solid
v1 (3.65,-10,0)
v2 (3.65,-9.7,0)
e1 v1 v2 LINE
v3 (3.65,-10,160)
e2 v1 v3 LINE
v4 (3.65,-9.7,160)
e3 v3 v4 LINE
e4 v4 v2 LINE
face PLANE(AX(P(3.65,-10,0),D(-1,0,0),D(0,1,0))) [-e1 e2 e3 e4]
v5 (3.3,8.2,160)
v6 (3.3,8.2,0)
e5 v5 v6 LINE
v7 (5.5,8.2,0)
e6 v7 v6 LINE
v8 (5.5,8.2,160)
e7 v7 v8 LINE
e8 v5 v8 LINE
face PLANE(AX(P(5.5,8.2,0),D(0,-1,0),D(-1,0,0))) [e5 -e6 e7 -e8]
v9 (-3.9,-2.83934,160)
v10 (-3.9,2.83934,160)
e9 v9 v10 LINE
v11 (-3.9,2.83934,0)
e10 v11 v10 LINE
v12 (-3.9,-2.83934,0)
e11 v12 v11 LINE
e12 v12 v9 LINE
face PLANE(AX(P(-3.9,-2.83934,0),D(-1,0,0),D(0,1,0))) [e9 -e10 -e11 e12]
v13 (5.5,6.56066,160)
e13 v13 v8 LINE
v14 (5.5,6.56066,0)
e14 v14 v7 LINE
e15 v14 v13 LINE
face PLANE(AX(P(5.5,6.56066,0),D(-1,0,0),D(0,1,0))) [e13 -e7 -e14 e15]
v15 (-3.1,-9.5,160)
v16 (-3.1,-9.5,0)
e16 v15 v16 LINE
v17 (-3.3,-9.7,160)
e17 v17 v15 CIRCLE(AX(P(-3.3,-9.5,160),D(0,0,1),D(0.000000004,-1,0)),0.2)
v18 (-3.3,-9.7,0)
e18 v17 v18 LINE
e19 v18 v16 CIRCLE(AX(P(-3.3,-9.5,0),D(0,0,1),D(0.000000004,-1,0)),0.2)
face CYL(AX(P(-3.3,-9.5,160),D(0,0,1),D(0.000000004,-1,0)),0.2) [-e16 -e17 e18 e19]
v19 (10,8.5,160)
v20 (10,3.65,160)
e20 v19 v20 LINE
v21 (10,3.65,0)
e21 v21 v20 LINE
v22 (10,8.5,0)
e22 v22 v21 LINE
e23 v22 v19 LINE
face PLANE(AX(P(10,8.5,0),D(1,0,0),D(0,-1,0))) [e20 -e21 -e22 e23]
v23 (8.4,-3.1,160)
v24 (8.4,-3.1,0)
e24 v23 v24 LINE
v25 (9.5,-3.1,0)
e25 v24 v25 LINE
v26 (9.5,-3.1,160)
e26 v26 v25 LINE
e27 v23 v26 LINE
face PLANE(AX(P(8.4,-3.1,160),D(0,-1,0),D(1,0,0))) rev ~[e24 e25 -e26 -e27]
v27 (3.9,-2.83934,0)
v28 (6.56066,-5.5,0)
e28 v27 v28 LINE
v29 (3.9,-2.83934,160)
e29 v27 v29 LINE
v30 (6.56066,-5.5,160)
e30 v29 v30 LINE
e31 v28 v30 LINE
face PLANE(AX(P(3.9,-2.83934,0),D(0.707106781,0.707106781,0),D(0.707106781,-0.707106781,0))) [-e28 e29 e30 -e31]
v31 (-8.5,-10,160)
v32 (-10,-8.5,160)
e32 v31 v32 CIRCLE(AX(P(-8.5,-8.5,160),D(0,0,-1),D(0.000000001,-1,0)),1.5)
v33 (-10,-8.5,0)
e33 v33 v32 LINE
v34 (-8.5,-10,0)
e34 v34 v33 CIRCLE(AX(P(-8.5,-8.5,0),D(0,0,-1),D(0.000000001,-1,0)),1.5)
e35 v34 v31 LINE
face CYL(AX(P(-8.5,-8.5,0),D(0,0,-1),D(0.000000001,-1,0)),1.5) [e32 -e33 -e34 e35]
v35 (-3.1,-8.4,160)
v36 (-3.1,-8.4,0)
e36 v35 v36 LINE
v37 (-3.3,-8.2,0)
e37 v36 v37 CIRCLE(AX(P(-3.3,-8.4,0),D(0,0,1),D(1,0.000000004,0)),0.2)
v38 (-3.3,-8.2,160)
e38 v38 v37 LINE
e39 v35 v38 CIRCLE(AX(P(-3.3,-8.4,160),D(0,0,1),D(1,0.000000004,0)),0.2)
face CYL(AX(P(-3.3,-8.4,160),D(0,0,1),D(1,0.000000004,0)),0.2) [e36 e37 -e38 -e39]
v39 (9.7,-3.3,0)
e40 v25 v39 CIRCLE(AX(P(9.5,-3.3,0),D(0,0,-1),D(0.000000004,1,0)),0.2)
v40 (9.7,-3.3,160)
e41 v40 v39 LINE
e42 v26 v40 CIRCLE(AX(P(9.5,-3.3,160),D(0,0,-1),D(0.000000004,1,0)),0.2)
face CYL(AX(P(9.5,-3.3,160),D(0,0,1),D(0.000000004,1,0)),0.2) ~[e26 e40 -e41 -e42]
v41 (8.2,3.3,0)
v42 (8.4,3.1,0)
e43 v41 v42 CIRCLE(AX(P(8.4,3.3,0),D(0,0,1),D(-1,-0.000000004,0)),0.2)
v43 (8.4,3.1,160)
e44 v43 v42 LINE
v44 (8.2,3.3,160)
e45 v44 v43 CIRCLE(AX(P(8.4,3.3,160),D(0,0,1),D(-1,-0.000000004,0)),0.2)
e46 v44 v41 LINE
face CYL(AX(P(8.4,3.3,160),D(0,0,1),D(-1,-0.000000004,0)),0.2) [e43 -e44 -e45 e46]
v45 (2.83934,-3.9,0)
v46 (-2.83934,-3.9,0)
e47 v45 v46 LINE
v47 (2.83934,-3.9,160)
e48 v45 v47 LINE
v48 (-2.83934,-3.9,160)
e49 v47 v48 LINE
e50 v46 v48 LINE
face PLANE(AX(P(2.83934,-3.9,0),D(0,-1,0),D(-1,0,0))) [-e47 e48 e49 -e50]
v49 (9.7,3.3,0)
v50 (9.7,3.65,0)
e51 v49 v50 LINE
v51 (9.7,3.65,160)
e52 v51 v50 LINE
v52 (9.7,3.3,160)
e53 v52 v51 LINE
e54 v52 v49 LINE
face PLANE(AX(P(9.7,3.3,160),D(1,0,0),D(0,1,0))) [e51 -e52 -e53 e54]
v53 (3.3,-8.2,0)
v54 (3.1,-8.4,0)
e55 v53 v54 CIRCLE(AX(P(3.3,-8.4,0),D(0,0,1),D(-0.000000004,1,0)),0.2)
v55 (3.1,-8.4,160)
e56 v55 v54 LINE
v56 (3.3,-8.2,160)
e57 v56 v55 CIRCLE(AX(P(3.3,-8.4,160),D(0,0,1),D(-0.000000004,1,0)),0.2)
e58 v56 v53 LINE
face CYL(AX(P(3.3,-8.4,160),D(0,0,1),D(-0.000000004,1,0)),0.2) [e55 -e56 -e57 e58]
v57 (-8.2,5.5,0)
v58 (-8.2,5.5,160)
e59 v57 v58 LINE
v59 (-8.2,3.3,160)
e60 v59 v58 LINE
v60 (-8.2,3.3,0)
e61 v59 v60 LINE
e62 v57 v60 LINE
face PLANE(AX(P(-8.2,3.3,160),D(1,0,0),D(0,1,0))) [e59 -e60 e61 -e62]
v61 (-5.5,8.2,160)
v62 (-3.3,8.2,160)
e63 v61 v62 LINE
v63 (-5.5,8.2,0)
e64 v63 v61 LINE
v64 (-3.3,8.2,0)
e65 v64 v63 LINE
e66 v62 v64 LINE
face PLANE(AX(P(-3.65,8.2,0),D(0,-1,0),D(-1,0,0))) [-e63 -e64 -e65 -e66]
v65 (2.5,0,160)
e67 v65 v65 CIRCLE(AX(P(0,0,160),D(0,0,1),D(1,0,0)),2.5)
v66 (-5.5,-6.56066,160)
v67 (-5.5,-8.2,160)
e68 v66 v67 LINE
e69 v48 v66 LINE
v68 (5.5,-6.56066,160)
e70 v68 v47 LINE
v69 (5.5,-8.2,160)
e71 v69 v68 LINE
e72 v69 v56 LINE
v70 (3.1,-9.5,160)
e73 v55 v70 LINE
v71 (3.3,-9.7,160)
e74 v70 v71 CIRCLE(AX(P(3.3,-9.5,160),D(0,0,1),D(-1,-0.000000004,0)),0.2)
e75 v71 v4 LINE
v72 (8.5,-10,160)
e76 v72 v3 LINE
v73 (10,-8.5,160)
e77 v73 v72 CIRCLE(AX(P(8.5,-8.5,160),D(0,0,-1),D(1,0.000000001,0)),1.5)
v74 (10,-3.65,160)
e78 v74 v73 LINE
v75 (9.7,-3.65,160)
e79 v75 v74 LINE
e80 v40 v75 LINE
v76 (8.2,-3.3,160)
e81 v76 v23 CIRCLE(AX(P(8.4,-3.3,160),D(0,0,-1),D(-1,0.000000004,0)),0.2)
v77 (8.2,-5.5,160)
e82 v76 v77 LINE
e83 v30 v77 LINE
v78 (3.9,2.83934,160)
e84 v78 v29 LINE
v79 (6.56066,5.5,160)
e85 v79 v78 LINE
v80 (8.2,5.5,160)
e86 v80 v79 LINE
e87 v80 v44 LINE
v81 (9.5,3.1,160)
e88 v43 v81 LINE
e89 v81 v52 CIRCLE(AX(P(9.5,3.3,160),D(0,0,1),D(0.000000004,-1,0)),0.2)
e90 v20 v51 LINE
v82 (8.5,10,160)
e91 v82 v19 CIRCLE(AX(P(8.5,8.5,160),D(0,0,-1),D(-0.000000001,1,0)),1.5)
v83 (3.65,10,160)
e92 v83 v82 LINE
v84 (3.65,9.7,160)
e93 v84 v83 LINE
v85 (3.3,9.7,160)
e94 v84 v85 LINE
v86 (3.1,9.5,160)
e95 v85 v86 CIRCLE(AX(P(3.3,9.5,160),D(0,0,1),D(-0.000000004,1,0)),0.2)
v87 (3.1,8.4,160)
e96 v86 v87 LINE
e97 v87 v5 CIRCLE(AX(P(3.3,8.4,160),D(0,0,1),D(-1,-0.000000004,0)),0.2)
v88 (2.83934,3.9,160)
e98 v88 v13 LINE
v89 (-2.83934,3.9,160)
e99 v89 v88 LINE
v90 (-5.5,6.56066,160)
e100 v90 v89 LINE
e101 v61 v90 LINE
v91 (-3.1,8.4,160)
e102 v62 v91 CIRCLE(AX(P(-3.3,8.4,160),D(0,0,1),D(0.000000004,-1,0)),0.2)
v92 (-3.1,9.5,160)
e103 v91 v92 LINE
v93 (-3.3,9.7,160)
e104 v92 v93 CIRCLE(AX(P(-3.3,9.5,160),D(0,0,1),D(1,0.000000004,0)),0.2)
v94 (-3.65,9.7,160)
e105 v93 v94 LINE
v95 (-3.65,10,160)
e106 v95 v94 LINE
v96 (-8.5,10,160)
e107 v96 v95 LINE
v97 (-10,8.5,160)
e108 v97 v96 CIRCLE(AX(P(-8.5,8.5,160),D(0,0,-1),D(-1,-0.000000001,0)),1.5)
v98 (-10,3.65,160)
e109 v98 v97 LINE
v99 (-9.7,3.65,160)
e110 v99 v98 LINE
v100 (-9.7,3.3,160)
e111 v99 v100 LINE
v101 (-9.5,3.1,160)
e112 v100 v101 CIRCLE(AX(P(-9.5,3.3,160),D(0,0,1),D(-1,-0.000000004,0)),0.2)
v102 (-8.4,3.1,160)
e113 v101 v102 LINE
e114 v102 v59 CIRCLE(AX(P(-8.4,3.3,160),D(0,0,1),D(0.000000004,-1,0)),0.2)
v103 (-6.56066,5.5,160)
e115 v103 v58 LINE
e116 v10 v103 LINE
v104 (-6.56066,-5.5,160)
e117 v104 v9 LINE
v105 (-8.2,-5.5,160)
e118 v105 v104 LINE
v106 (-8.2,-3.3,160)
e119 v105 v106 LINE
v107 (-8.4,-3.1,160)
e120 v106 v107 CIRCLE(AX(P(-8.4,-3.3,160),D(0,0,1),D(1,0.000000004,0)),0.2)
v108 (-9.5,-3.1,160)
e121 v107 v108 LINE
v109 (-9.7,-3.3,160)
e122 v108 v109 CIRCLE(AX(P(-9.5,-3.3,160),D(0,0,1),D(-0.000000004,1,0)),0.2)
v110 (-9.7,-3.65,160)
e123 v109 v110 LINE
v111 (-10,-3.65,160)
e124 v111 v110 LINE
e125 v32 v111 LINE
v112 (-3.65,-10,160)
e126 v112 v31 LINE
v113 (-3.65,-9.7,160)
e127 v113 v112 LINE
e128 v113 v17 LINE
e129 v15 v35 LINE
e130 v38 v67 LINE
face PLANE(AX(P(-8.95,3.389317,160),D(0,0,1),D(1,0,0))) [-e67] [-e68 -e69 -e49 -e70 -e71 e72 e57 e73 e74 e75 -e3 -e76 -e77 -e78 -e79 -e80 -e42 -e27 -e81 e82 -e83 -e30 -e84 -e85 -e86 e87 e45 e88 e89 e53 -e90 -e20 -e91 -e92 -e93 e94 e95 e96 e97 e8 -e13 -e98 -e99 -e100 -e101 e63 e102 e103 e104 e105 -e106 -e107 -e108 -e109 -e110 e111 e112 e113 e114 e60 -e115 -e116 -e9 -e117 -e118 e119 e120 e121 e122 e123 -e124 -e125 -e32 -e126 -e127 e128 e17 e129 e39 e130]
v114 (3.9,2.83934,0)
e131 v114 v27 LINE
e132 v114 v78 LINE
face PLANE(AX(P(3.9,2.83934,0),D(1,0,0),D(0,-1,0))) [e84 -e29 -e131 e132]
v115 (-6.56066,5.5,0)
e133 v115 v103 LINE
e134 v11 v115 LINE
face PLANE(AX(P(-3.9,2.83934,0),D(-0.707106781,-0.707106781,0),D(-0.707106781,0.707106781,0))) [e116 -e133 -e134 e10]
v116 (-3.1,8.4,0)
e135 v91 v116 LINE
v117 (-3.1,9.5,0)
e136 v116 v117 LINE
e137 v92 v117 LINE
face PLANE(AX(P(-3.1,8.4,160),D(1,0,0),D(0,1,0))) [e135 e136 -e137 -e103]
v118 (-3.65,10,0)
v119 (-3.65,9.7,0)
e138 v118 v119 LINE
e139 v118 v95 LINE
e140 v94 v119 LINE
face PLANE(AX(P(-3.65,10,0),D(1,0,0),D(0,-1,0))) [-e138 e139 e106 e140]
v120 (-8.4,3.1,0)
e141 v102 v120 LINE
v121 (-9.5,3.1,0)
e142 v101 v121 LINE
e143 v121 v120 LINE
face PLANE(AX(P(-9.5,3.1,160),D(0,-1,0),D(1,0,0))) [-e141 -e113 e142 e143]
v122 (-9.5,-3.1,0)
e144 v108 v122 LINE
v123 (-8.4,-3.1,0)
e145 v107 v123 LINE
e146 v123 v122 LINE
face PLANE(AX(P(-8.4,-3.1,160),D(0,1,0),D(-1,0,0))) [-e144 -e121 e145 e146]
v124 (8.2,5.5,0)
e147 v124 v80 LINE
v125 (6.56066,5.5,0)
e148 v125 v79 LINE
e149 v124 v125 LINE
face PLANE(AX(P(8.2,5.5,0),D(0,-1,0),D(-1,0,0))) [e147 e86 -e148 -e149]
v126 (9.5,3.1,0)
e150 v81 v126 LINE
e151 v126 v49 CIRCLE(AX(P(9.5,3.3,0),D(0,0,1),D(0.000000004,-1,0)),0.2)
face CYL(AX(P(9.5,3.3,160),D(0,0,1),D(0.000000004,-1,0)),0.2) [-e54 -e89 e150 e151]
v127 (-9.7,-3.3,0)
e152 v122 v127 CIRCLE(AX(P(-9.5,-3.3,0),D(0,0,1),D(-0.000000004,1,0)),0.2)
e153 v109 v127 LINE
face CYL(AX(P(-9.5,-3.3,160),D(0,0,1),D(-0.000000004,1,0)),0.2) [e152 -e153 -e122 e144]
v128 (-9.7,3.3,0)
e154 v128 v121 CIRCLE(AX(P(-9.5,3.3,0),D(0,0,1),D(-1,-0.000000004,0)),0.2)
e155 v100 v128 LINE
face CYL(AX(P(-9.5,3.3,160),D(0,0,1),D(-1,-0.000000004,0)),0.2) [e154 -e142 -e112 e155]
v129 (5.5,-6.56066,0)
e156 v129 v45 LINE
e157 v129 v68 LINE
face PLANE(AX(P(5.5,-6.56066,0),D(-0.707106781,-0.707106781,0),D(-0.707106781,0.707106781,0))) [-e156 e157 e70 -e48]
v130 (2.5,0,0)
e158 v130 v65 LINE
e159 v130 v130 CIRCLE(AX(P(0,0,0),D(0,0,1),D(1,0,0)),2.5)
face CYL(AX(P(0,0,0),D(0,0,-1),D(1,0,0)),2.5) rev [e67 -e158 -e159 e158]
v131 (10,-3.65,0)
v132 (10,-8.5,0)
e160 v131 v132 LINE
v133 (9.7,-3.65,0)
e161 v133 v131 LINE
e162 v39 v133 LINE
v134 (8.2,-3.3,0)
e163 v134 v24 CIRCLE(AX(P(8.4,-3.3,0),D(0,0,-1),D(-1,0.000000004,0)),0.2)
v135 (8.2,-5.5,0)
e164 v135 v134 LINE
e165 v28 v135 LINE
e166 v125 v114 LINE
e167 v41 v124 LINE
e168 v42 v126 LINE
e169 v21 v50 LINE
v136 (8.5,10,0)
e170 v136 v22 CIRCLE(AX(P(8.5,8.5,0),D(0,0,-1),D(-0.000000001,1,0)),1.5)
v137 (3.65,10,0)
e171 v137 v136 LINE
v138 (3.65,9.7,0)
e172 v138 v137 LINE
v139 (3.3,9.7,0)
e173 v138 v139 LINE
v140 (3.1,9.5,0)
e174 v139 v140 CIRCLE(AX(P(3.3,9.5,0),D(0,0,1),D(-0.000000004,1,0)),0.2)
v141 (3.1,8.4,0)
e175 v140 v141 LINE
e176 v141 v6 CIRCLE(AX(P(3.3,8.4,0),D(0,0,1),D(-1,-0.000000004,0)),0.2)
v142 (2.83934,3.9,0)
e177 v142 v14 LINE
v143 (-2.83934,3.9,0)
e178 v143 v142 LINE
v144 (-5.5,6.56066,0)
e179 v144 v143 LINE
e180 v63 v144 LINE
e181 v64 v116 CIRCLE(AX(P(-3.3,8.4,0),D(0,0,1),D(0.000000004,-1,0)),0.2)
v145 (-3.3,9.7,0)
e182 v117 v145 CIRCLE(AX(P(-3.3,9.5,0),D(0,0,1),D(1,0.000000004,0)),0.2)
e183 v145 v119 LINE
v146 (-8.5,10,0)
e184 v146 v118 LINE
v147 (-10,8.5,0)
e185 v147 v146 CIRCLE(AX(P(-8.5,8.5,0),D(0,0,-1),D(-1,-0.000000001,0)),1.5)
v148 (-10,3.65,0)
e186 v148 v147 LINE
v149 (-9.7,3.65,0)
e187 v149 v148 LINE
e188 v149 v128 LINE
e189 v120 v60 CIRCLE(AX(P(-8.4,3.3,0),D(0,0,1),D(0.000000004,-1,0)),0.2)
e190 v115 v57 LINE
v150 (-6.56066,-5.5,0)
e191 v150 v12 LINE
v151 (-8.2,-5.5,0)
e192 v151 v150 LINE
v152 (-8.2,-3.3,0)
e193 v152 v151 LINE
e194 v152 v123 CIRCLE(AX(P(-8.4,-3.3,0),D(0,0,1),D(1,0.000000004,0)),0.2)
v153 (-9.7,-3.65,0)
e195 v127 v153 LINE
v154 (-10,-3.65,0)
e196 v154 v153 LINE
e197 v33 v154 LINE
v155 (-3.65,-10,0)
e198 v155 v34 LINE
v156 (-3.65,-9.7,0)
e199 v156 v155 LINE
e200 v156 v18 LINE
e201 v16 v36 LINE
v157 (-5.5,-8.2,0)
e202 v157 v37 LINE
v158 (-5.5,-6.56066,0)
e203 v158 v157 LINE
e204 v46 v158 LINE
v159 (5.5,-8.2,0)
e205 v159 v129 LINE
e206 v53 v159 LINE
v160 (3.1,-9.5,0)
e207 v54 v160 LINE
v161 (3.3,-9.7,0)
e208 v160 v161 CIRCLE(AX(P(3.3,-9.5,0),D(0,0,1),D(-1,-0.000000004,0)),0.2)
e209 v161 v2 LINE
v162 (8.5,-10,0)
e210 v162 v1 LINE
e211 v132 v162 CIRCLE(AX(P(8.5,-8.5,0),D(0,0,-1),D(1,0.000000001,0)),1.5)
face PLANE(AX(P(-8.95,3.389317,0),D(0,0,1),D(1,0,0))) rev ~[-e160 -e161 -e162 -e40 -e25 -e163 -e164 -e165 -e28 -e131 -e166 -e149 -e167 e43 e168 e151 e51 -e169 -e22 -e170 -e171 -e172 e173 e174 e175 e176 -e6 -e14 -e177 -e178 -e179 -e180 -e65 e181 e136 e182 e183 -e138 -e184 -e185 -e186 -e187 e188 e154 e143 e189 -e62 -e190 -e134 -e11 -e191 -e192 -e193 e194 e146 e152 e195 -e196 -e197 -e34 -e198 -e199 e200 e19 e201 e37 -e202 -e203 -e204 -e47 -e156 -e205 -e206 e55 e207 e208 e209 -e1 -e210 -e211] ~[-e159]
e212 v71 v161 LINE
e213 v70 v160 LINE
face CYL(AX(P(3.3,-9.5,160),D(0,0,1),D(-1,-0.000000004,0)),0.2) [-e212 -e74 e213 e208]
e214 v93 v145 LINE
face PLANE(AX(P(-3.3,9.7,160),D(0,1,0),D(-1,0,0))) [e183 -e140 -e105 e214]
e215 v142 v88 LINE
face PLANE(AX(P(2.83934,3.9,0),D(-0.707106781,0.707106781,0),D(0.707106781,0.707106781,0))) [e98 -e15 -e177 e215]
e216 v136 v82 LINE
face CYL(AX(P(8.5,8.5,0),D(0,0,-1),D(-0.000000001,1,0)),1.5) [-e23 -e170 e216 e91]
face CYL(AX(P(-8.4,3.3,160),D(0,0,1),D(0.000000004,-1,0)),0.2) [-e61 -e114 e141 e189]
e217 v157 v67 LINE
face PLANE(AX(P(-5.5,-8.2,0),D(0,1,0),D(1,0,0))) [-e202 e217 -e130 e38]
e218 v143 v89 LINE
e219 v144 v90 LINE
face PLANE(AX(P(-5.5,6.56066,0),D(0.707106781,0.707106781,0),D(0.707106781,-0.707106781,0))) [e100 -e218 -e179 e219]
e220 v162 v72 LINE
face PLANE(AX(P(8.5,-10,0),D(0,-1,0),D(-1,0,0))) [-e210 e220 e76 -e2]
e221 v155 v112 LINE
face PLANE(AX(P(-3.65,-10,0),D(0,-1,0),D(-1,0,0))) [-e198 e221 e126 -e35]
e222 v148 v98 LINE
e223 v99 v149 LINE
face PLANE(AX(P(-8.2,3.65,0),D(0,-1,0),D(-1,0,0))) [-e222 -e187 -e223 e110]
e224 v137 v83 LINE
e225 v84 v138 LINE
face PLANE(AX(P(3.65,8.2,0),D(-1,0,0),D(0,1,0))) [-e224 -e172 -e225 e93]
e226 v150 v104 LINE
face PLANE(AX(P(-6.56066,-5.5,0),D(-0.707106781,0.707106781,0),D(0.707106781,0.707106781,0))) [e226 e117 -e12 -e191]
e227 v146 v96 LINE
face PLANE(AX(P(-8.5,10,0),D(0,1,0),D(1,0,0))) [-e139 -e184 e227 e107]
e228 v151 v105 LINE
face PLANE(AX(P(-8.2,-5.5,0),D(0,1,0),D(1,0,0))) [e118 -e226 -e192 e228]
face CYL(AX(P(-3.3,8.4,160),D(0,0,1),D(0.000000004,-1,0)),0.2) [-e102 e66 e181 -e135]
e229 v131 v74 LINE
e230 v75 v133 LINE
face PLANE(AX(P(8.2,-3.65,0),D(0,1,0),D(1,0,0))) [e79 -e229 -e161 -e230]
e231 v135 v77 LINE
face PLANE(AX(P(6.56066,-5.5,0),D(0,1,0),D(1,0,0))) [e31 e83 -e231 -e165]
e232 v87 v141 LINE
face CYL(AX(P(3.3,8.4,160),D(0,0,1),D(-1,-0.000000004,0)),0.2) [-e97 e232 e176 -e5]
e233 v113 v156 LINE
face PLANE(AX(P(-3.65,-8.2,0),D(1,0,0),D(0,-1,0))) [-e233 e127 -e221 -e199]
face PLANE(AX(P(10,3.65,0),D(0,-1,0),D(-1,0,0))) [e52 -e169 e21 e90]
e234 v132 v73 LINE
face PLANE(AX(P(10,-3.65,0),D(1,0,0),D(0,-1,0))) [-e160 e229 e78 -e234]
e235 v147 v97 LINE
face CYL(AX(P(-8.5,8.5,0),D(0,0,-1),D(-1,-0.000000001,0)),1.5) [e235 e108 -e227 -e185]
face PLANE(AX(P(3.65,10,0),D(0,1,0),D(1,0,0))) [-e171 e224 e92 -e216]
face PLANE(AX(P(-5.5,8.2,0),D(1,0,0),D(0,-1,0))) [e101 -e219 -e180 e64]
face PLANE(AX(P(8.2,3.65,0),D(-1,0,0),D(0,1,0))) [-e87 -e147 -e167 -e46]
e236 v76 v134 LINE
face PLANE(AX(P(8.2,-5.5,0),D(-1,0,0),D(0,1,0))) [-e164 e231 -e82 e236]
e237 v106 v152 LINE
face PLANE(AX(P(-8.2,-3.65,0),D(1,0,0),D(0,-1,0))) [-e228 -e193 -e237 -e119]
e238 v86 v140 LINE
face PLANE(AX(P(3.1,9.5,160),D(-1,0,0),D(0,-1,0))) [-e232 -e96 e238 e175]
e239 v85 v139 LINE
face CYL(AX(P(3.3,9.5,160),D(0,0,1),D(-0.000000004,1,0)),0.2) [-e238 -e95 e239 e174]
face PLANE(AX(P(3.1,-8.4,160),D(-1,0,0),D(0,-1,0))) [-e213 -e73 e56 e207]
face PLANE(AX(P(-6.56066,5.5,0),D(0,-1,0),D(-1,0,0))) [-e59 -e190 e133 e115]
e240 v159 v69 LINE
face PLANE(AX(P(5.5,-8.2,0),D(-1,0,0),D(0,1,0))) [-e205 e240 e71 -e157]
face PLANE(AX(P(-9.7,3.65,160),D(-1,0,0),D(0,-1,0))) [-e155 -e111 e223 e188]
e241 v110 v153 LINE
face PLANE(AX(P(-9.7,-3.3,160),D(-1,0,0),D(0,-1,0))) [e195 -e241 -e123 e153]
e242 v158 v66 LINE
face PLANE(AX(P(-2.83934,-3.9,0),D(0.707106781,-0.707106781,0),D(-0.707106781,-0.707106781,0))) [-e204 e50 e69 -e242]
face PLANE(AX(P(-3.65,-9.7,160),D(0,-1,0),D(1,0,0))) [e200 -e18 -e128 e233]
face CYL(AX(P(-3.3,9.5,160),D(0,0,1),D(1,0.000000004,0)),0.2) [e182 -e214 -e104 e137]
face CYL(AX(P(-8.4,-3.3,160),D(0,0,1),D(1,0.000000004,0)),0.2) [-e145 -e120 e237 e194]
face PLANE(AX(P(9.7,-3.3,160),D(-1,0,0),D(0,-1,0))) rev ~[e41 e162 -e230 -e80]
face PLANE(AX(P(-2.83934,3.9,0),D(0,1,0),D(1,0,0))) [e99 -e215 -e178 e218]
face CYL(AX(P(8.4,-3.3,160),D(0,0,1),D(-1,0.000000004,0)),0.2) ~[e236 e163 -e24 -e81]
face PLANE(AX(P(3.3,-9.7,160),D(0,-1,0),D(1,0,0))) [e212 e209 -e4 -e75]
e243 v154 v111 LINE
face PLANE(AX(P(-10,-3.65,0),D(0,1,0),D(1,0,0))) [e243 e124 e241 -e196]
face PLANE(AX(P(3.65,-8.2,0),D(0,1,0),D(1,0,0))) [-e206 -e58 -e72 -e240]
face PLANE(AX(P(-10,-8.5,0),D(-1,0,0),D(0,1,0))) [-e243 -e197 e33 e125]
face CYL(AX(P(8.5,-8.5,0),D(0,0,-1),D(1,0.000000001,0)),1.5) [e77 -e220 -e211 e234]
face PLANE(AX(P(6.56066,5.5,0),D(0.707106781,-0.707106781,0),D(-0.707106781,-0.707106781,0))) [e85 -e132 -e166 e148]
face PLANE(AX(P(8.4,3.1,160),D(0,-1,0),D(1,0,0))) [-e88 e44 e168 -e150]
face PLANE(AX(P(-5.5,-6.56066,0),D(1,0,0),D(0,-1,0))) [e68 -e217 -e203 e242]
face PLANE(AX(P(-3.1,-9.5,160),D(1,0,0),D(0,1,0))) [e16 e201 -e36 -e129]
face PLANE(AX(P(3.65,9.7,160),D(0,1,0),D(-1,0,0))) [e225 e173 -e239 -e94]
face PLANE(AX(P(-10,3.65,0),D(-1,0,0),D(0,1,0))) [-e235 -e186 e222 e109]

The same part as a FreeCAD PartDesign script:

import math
import FreeCAD as App
import Part
import Sketcher
Q = App.Units.Quantity

doc = App.newDocument("Part")
params = doc.addObject("Spreadsheet::Sheet", "Params")
for row, (alias, value) in enumerate([
    ("sketch1_diameter", "5 mm"),
    ("sketch1_radius", "1.5 mm"),
    ("sketch1_width", "1.8 mm"),
    ("sketch1_width2", "4.85 mm"),
    ("pad1_length", "160 mm"),
    ("sketch2_radius", "0.2 mm"),
    ("sketch2_width", "1.5 mm"),
    ("sketch2_width2", "0.35 mm"),
    ("pad2_length", "160 mm"),
], start=1):
    params.set(f"A{row}", alias)
    params.set(f"B{row}", "=" + value)
    params.setAlias(f"B{row}", alias)

body = doc.addObject("PartDesign::Body", "Body")

# Sketch on XY plane
sketch1 = body.newObject("Sketcher::SketchObject", "Sketch")
sketch1.AttachmentSupport = (doc.getObject("XY_Plane"), [""])
sketch1.MapMode = "FlatFace"
sketch1.addGeometry([
    Part.LineSegment(App.Vector(8.5, 10, 0), App.Vector(3.6, 10, 0)),  # 0
    Part.LineSegment(App.Vector(3.6, 10, 0), App.Vector(3.6, 8.2, 0)),  # 1
    Part.LineSegment(App.Vector(3.6, 8.2, 0), App.Vector(5.5, 8.2, 0)),  # 2
    Part.LineSegment(App.Vector(5.5, 8.2, 0), App.Vector(5.5, 6.6, 0)),  # 3
    Part.LineSegment(App.Vector(5.5, 6.6, 0), App.Vector(2.8, 3.9, 0)),  # 4
    Part.LineSegment(App.Vector(2.8, 3.9, 0), App.Vector(-2.8, 3.9, 0)),  # 5
    Part.LineSegment(App.Vector(-2.8, 3.9, 0), App.Vector(-5.5, 6.6, 0)),  # 6
    Part.LineSegment(App.Vector(-5.5, 6.6, 0), App.Vector(-5.5, 8.2, 0)),  # 7
    Part.LineSegment(App.Vector(-5.5, 8.2, 0), App.Vector(-3.6, 8.2, 0)),  # 8
    Part.LineSegment(App.Vector(-3.6, 8.2, 0), App.Vector(-3.6, 10, 0)),  # 9
    Part.LineSegment(App.Vector(-3.6, 10, 0), App.Vector(-8.5, 10, 0)),  # 10
    Part.ArcOfCircle(Part.Circle(App.Vector(-8.5, 8.5, 0), App.Vector(0, 0, 1), 1.5), math.radians(90), math.radians(180)),  # 11
    Part.LineSegment(App.Vector(-10, 8.5, 0), App.Vector(-10, 3.6, 0)),  # 12
    Part.LineSegment(App.Vector(-10, 3.6, 0), App.Vector(-8.2, 3.6, 0)),  # 13
    Part.LineSegment(App.Vector(-8.2, 3.6, 0), App.Vector(-8.2, 5.5, 0)),  # 14
    Part.LineSegment(App.Vector(-8.2, 5.5, 0), App.Vector(-6.6, 5.5, 0)),  # 15
    Part.LineSegment(App.Vector(-6.6, 5.5, 0), App.Vector(-3.9, 2.8, 0)),  # 16
    Part.LineSegment(App.Vector(-3.9, 2.8, 0), App.Vector(-3.9, -2.8, 0)),  # 17
    Part.LineSegment(App.Vector(-3.9, -2.8, 0), App.Vector(-6.6, -5.5, 0)),  # 18
    Part.LineSegment(App.Vector(-6.6, -5.5, 0), App.Vector(-8.2, -5.5, 0)),  # 19
    Part.LineSegment(App.Vector(-8.2, -5.5, 0), App.Vector(-8.2, -3.6, 0)),  # 20
    Part.LineSegment(App.Vector(-8.2, -3.6, 0), App.Vector(-10, -3.6, 0)),  # 21
    Part.LineSegment(App.Vector(-10, -3.6, 0), App.Vector(-10, -8.5, 0)),  # 22
    Part.ArcOfCircle(Part.Circle(App.Vector(-8.5, -8.5, 0), App.Vector(0, 0, 1), 1.5), math.radians(180), math.radians(270)),  # 23
    Part.LineSegment(App.Vector(-8.5, -10, 0), App.Vector(-3.6, -10, 0)),  # 24
    Part.LineSegment(App.Vector(-3.6, -10, 0), App.Vector(-3.6, -8.2, 0)),  # 25
    Part.LineSegment(App.Vector(-3.6, -8.2, 0), App.Vector(-5.5, -8.2, 0)),  # 26
    Part.LineSegment(App.Vector(-5.5, -8.2, 0), App.Vector(-5.5, -6.6, 0)),  # 27
    Part.LineSegment(App.Vector(-5.5, -6.6, 0), App.Vector(-2.8, -3.9, 0)),  # 28
    Part.LineSegment(App.Vector(-2.8, -3.9, 0), App.Vector(2.8, -3.9, 0)),  # 29
    Part.LineSegment(App.Vector(2.8, -3.9, 0), App.Vector(5.5, -6.6, 0)),  # 30
    Part.LineSegment(App.Vector(5.5, -6.6, 0), App.Vector(5.5, -8.2, 0)),  # 31
    Part.LineSegment(App.Vector(5.5, -8.2, 0), App.Vector(3.6, -8.2, 0)),  # 32
    Part.LineSegment(App.Vector(3.6, -8.2, 0), App.Vector(3.6, -10, 0)),  # 33
    Part.LineSegment(App.Vector(3.6, -10, 0), App.Vector(8.5, -10, 0)),  # 34
    Part.ArcOfCircle(Part.Circle(App.Vector(8.5, -8.5, 0), App.Vector(0, 0, 1), 1.5), math.radians(-90), math.radians(0)),  # 35
    Part.LineSegment(App.Vector(10, -8.5, 0), App.Vector(10, -3.6, 0)),  # 36
    Part.LineSegment(App.Vector(10, -3.6, 0), App.Vector(8.2, -3.6, 0)),  # 37
    Part.LineSegment(App.Vector(8.2, -3.6, 0), App.Vector(8.2, -5.5, 0)),  # 38
    Part.LineSegment(App.Vector(8.2, -5.5, 0), App.Vector(6.6, -5.5, 0)),  # 39
    Part.LineSegment(App.Vector(6.6, -5.5, 0), App.Vector(3.9, -2.8, 0)),  # 40
    Part.LineSegment(App.Vector(3.9, -2.8, 0), App.Vector(3.9, 2.8, 0)),  # 41
    Part.LineSegment(App.Vector(3.9, 2.8, 0), App.Vector(6.6, 5.5, 0)),  # 42
    Part.LineSegment(App.Vector(6.6, 5.5, 0), App.Vector(8.2, 5.5, 0)),  # 43
    Part.LineSegment(App.Vector(8.2, 5.5, 0), App.Vector(8.2, 3.6, 0)),  # 44
    Part.LineSegment(App.Vector(8.2, 3.6, 0), App.Vector(10, 3.6, 0)),  # 45
    Part.LineSegment(App.Vector(10, 3.6, 0), App.Vector(10, 8.5, 0)),  # 46
    Part.ArcOfCircle(Part.Circle(App.Vector(8.5, 8.5, 0), App.Vector(0, 0, 1), 1.5), math.radians(0), math.radians(90)),  # 47
    Part.Circle(App.Vector(0, 0, 0), App.Vector(0, 0, 1), 2.5),  # 48
], False)
sketch1.addConstraint([
    Sketcher.Constraint("Coincident", 0, 2, 1, 1),
    Sketcher.Constraint("Coincident", 1, 2, 2, 1),
    Sketcher.Constraint("Coincident", 2, 2, 3, 1),
    Sketcher.Constraint("Coincident", 3, 2, 4, 1),
    Sketcher.Constraint("Coincident", 4, 2, 5, 1),
    Sketcher.Constraint("Coincident", 5, 2, 6, 1),
    Sketcher.Constraint("Coincident", 6, 2, 7, 1),
    Sketcher.Constraint("Coincident", 7, 2, 8, 1),
    Sketcher.Constraint("Coincident", 8, 2, 9, 1),
    Sketcher.Constraint("Coincident", 9, 2, 10, 1),
    Sketcher.Constraint("Tangent", 10, 2, 11, 1),
    Sketcher.Constraint("Tangent", 11, 2, 12, 1),
    Sketcher.Constraint("Coincident", 12, 2, 13, 1),
    Sketcher.Constraint("Coincident", 13, 2, 14, 1),
    Sketcher.Constraint("Coincident", 14, 2, 15, 1),
    Sketcher.Constraint("Coincident", 15, 2, 16, 1),
    Sketcher.Constraint("Coincident", 16, 2, 17, 1),
    Sketcher.Constraint("Coincident", 17, 2, 18, 1),
    Sketcher.Constraint("Coincident", 18, 2, 19, 1),
    Sketcher.Constraint("Coincident", 19, 2, 20, 1),
    Sketcher.Constraint("Coincident", 20, 2, 21, 1),
    Sketcher.Constraint("Coincident", 21, 2, 22, 1),
    Sketcher.Constraint("Tangent", 22, 2, 23, 1),
    Sketcher.Constraint("Tangent", 23, 2, 24, 1),
    Sketcher.Constraint("Coincident", 24, 2, 25, 1),
    Sketcher.Constraint("Coincident", 25, 2, 26, 1),
    Sketcher.Constraint("Coincident", 26, 2, 27, 1),
    Sketcher.Constraint("Coincident", 27, 2, 28, 1),
    Sketcher.Constraint("Coincident", 28, 2, 29, 1),
    Sketcher.Constraint("Coincident", 29, 2, 30, 1),
    Sketcher.Constraint("Coincident", 30, 2, 31, 1),
    Sketcher.Constraint("Coincident", 31, 2, 32, 1),
    Sketcher.Constraint("Coincident", 32, 2, 33, 1),
    Sketcher.Constraint("Coincident", 33, 2, 34, 1),
    Sketcher.Constraint("Tangent", 34, 2, 35, 1),
    Sketcher.Constraint("Tangent", 35, 2, 36, 1),
    Sketcher.Constraint("Coincident", 36, 2, 37, 1),
    Sketcher.Constraint("Coincident", 37, 2, 38, 1),
    Sketcher.Constraint("Coincident", 38, 2, 39, 1),
    Sketcher.Constraint("Coincident", 39, 2, 40, 1),
    Sketcher.Constraint("Coincident", 40, 2, 41, 1),
    Sketcher.Constraint("Coincident", 41, 2, 42, 1),
    Sketcher.Constraint("Coincident", 42, 2, 43, 1),
    Sketcher.Constraint("Coincident", 43, 2, 44, 1),
    Sketcher.Constraint("Coincident", 44, 2, 45, 1),
    Sketcher.Constraint("Coincident", 45, 2, 46, 1),
    Sketcher.Constraint("Tangent", 46, 2, 47, 1),
    Sketcher.Constraint("Tangent", 47, 2, 0, 1),
    Sketcher.Constraint("Horizontal", 0),
    Sketcher.Constraint("Vertical", 1),
    Sketcher.Constraint("Horizontal", 2),
    Sketcher.Constraint("Vertical", 3),
    Sketcher.Constraint("Horizontal", 5),
    Sketcher.Constraint("Vertical", 7),
    Sketcher.Constraint("Horizontal", 8),
    Sketcher.Constraint("Vertical", 9),
    Sketcher.Constraint("Horizontal", 10),
    Sketcher.Constraint("Vertical", 12),
    Sketcher.Constraint("Horizontal", 13),
    Sketcher.Constraint("Vertical", 14),
    Sketcher.Constraint("Horizontal", 15),
    Sketcher.Constraint("Vertical", 17),
    Sketcher.Constraint("Horizontal", 19),
    Sketcher.Constraint("Vertical", 20),
    Sketcher.Constraint("Horizontal", 21),
    Sketcher.Constraint("Vertical", 22),
    Sketcher.Constraint("Horizontal", 24),
    Sketcher.Constraint("Vertical", 25),
    Sketcher.Constraint("Horizontal", 26),
    Sketcher.Constraint("Vertical", 27),
    Sketcher.Constraint("Horizontal", 29),
    Sketcher.Constraint("Vertical", 31),
    Sketcher.Constraint("Horizontal", 32),
    Sketcher.Constraint("Vertical", 33),
    Sketcher.Constraint("Horizontal", 34),
    Sketcher.Constraint("Vertical", 36),
    Sketcher.Constraint("Horizontal", 37),
    Sketcher.Constraint("Vertical", 38),
    Sketcher.Constraint("Horizontal", 39),
    Sketcher.Constraint("Vertical", 41),
    Sketcher.Constraint("Horizontal", 43),
    Sketcher.Constraint("Vertical", 44),
    Sketcher.Constraint("Horizontal", 45),
    Sketcher.Constraint("Vertical", 46),
    Sketcher.Constraint("Coincident", 48, 3, -1, 1),
    Sketcher.Constraint("Equal", 11, 23),
    Sketcher.Constraint("Equal", 23, 35),
    Sketcher.Constraint("Equal", 35, 47),
    Sketcher.Constraint("Symmetric", 11, 3, 35, 3, -1, 1),
    Sketcher.Constraint("Symmetric", 23, 3, 47, 3, -1, 1),
    Sketcher.Constraint("Symmetric", 1, 2, 25, 2, -1, 1),
    Sketcher.Constraint("Symmetric", 3, 2, 27, 2, -1, 1),
    Sketcher.Constraint("Symmetric", 4, 2, 28, 2, -1, 1),
    Sketcher.Constraint("Symmetric", 6, 2, 30, 2, -1, 1),
    Sketcher.Constraint("Symmetric", 8, 2, 32, 2, -1, 1),
    Sketcher.Constraint("Symmetric", 13, 2, 37, 2, -1, 1),
    Sketcher.Constraint("Symmetric", 15, 2, 39, 2, -1, 1),
    Sketcher.Constraint("Symmetric", 16, 2, 40, 2, -1, 1),
    Sketcher.Constraint("Symmetric", 18, 2, 42, 2, -1, 1),
    Sketcher.Constraint("Symmetric", 20, 2, 44, 2, -1, 1),
    Sketcher.Constraint("Symmetric", 23, 3, 35, 3, -2),
    Sketcher.Constraint("Symmetric", 3, 2, 6, 2, -2),
    Sketcher.Constraint("Symmetric", 1, 2, 8, 2, -2),
    Sketcher.Constraint("Symmetric", 20, 2, 37, 2, -2),
    Sketcher.Constraint("Symmetric", 18, 2, 39, 2, -2),
    Sketcher.Constraint("Perpendicular", 4, 6),
    Sketcher.Constraint("Parallel", 6, 16),
    Sketcher.Constraint("Perpendicular", 16, 18),
    Sketcher.Constraint("Perpendicular", 28, 30),
    Sketcher.Constraint("Perpendicular", 40, 42),
    Sketcher.Constraint("Horizontal", 17, 2, 40, 2),
    Sketcher.Constraint("Equal", 45, 1),
    Sketcher.Constraint("Equal", 43, 3),
    Sketcher.Constraint("Equal", 34, 12),
    Sketcher.Constraint("Equal", 32, 14),
    Sketcher.Constraint("Equal", 29, 17),
    Sketcher.Constraint("Equal", 6, 16),
    Sketcher.Constraint("Diameter", 48, Q("5 mm")),
    Sketcher.Constraint("Radius", 11, Q("1.5 mm")),
    Sketcher.Constraint("DistanceX", 13, 1, 13, 2, Q("1.8 mm")),
    Sketcher.Constraint("DistanceY", -1, 1, 0, 2, Q("10 mm")),
    Sketcher.Constraint("DistanceX", 2, 2, 47, 3, Q("3 mm")),
    Sketcher.Constraint("DistanceX", 0, 2, 0, 1, Q("4.85 mm")),
    Sketcher.Constraint("DistanceY", -1, 1, 4, 2, Q("3.9 mm")),
    Sketcher.Constraint("DistanceX", 5, 2, 5, 1, Q("5.67868 mm")),
])
sketch1.setExpression("Constraints[117]", "Params.sketch1_diameter")
sketch1.setExpression("Constraints[118]", "Params.sketch1_radius")
sketch1.setExpression("Constraints[119]", "Params.sketch1_width")
sketch1.setExpression("Constraints[122]", "Params.sketch1_width2")
pad1 = body.newObject("PartDesign::Pad", "Pad")
pad1.Profile = sketch1
pad1.setExpression("Length", "Params.pad1_length")

# Sketch on XY plane
sketch2 = body.newObject("Sketcher::SketchObject", "Sketch001")
sketch2.AttachmentSupport = (doc.getObject("XY_Plane"), [""])
sketch2.MapMode = "FlatFace"
sketch2.AttachmentOffset = App.Placement(App.Vector(0, 0, 160), App.Rotation())
sketch2.addGeometry([
    Part.LineSegment(App.Vector(-8.2, 3.65, 0), App.Vector(-9.7, 3.65, 0)),  # 0
    Part.LineSegment(App.Vector(-9.7, 3.65, 0), App.Vector(-9.7, 3.3, 0)),  # 1
    Part.ArcOfCircle(Part.Circle(App.Vector(-9.5, 3.3, 0), App.Vector(0, 0, 1), 0.2), math.radians(-180), math.radians(-90)),  # 2
    Part.LineSegment(App.Vector(-9.5, 3.1, 0), App.Vector(-8.4, 3.1, 0)),  # 3
    Part.ArcOfCircle(Part.Circle(App.Vector(-8.4, 3.3, 0), App.Vector(0, 0, 1), 0.2), math.radians(-90), math.radians(0)),  # 4
    Part.LineSegment(App.Vector(-8.2, 3.3, 0), App.Vector(-8.2, 3.65, 0)),  # 5
    Part.LineSegment(App.Vector(-3.65, 9.7, 0), App.Vector(-3.65, 8.2, 0)),  # 6
    Part.LineSegment(App.Vector(-3.65, 8.2, 0), App.Vector(-3.3, 8.2, 0)),  # 7
    Part.ArcOfCircle(Part.Circle(App.Vector(-3.3, 8.4, 0), App.Vector(0, 0, 1), 0.2), math.radians(-90), math.radians(0)),  # 8
    Part.LineSegment(App.Vector(-3.1, 8.4, 0), App.Vector(-3.1, 9.5, 0)),  # 9
    Part.ArcOfCircle(Part.Circle(App.Vector(-3.3, 9.5, 0), App.Vector(0, 0, 1), 0.2), math.radians(0), math.radians(90)),  # 10
    Part.LineSegment(App.Vector(-3.3, 9.7, 0), App.Vector(-3.65, 9.7, 0)),  # 11
    Part.LineSegment(App.Vector(3.65, 8.2, 0), App.Vector(3.65, 9.7, 0)),  # 12
    Part.LineSegment(App.Vector(3.65, 9.7, 0), App.Vector(3.3, 9.7, 0)),  # 13
    Part.ArcOfCircle(Part.Circle(App.Vector(3.3, 9.5, 0), App.Vector(0, 0, 1), 0.2), math.radians(90), math.radians(180)),  # 14
    Part.LineSegment(App.Vector(3.1, 9.5, 0), App.Vector(3.1, 8.4, 0)),  # 15
    Part.ArcOfCircle(Part.Circle(App.Vector(3.3, 8.4, 0), App.Vector(0, 0, 1), 0.2), math.radians(-180), math.radians(-90)),  # 16
    Part.LineSegment(App.Vector(3.3, 8.2, 0), App.Vector(3.65, 8.2, 0)),  # 17
    Part.LineSegment(App.Vector(9.7, 3.65, 0), App.Vector(8.2, 3.65, 0)),  # 18
    Part.LineSegment(App.Vector(8.2, 3.65, 0), App.Vector(8.2, 3.3, 0)),  # 19
    Part.ArcOfCircle(Part.Circle(App.Vector(8.4, 3.3, 0), App.Vector(0, 0, 1), 0.2), math.radians(-180), math.radians(-90)),  # 20
    Part.LineSegment(App.Vector(8.4, 3.1, 0), App.Vector(9.5, 3.1, 0)),  # 21
    Part.ArcOfCircle(Part.Circle(App.Vector(9.5, 3.3, 0), App.Vector(0, 0, 1), 0.2), math.radians(-90), math.radians(0)),  # 22
    Part.LineSegment(App.Vector(9.7, 3.3, 0), App.Vector(9.7, 3.65, 0)),  # 23
    Part.LineSegment(App.Vector(3.65, -9.7, 0), App.Vector(3.65, -8.2, 0)),  # 24
    Part.LineSegment(App.Vector(3.65, -8.2, 0), App.Vector(3.3, -8.2, 0)),  # 25
    Part.ArcOfCircle(Part.Circle(App.Vector(3.3, -8.4, 0), App.Vector(0, 0, 1), 0.2), math.radians(90), math.radians(180)),  # 26
    Part.LineSegment(App.Vector(3.1, -8.4, 0), App.Vector(3.1, -9.5, 0)),  # 27
    Part.ArcOfCircle(Part.Circle(App.Vector(3.3, -9.5, 0), App.Vector(0, 0, 1), 0.2), math.radians(-180), math.radians(-90)),  # 28
    Part.LineSegment(App.Vector(3.3, -9.7, 0), App.Vector(3.65, -9.7, 0)),  # 29
    Part.LineSegment(App.Vector(-3.65, -8.2, 0), App.Vector(-3.65, -9.7, 0)),  # 30
    Part.LineSegment(App.Vector(-3.65, -9.7, 0), App.Vector(-3.3, -9.7, 0)),  # 31
    Part.ArcOfCircle(Part.Circle(App.Vector(-3.3, -9.5, 0), App.Vector(0, 0, 1), 0.2), math.radians(-90), math.radians(0)),  # 32
    Part.LineSegment(App.Vector(-3.1, -9.5, 0), App.Vector(-3.1, -8.4, 0)),  # 33
    Part.ArcOfCircle(Part.Circle(App.Vector(-3.3, -8.4, 0), App.Vector(0, 0, 1), 0.2), math.radians(0), math.radians(90)),  # 34
    Part.LineSegment(App.Vector(-3.3, -8.2, 0), App.Vector(-3.65, -8.2, 0)),  # 35
    Part.LineSegment(App.Vector(8.2, -3.3, 0), App.Vector(8.2, -3.65, 0)),  # 36
    Part.LineSegment(App.Vector(8.2, -3.65, 0), App.Vector(9.7, -3.65, 0)),  # 37
    Part.LineSegment(App.Vector(9.7, -3.65, 0), App.Vector(9.7, -3.3, 0)),  # 38
    Part.ArcOfCircle(Part.Circle(App.Vector(9.5, -3.3, 0), App.Vector(0, 0, 1), 0.2), math.radians(0), math.radians(90)),  # 39
    Part.LineSegment(App.Vector(9.5, -3.1, 0), App.Vector(8.4, -3.1, 0)),  # 40
    Part.ArcOfCircle(Part.Circle(App.Vector(8.4, -3.3, 0), App.Vector(0, 0, 1), 0.2), math.radians(90), math.radians(180)),  # 41
    Part.LineSegment(App.Vector(-8.2, -3.65, 0), App.Vector(-8.2, -3.3, 0)),  # 42
    Part.ArcOfCircle(Part.Circle(App.Vector(-8.4, -3.3, 0), App.Vector(0, 0, 1), 0.2), math.radians(0), math.radians(90)),  # 43
    Part.LineSegment(App.Vector(-8.4, -3.1, 0), App.Vector(-9.5, -3.1, 0)),  # 44
    Part.ArcOfCircle(Part.Circle(App.Vector(-9.5, -3.3, 0), App.Vector(0, 0, 1), 0.2), math.radians(90), math.radians(180)),  # 45
    Part.LineSegment(App.Vector(-9.7, -3.3, 0), App.Vector(-9.7, -3.65, 0)),  # 46
    Part.LineSegment(App.Vector(-9.7, -3.65, 0), App.Vector(-8.2, -3.65, 0)),  # 47
], False)
sketch2.addConstraint([
    Sketcher.Constraint("Coincident", 0, 2, 1, 1),
    Sketcher.Constraint("Tangent", 1, 2, 2, 1),
    Sketcher.Constraint("Tangent", 2, 2, 3, 1),
    Sketcher.Constraint("Tangent", 3, 2, 4, 1),
    Sketcher.Constraint("Tangent", 4, 2, 5, 1),
    Sketcher.Constraint("Coincident", 5, 2, 0, 1),
    Sketcher.Constraint("Coincident", 6, 2, 7, 1),
    Sketcher.Constraint("Tangent", 7, 2, 8, 1),
    Sketcher.Constraint("Tangent", 8, 2, 9, 1),
    Sketcher.Constraint("Tangent", 9, 2, 10, 1),
    Sketcher.Constraint("Tangent", 10, 2, 11, 1),
    Sketcher.Constraint("Coincident", 11, 2, 6, 1),
    Sketcher.Constraint("Coincident", 12, 2, 13, 1),
    Sketcher.Constraint("Tangent", 13, 2, 14, 1),
    Sketcher.Constraint("Tangent", 14, 2, 15, 1),
    Sketcher.Constraint("Tangent", 15, 2, 16, 1),
    Sketcher.Constraint("Tangent", 16, 2, 17, 1),
    Sketcher.Constraint("Coincident", 17, 2, 12, 1),
    Sketcher.Constraint("Coincident", 18, 2, 19, 1),
    Sketcher.Constraint("Tangent", 19, 2, 20, 1),
    Sketcher.Constraint("Tangent", 20, 2, 21, 1),
    Sketcher.Constraint("Tangent", 21, 2, 22, 1),
    Sketcher.Constraint("Tangent", 22, 2, 23, 1),
    Sketcher.Constraint("Coincident", 23, 2, 18, 1),
    Sketcher.Constraint("Coincident", 24, 2, 25, 1),
    Sketcher.Constraint("Tangent", 25, 2, 26, 1),
    Sketcher.Constraint("Tangent", 26, 2, 27, 1),
    Sketcher.Constraint("Tangent", 27, 2, 28, 1),
    Sketcher.Constraint("Tangent", 28, 2, 29, 1),
    Sketcher.Constraint("Coincident", 29, 2, 24, 1),
    Sketcher.Constraint("Coincident", 30, 2, 31, 1),
    Sketcher.Constraint("Tangent", 31, 2, 32, 1),
    Sketcher.Constraint("Tangent", 32, 2, 33, 1),
    Sketcher.Constraint("Tangent", 33, 2, 34, 1),
    Sketcher.Constraint("Tangent", 34, 2, 35, 1),
    Sketcher.Constraint("Coincident", 35, 2, 30, 1),
    Sketcher.Constraint("Coincident", 36, 2, 37, 1),
    Sketcher.Constraint("Coincident", 37, 2, 38, 1),
    Sketcher.Constraint("Tangent", 38, 2, 39, 1),
    Sketcher.Constraint("Tangent", 39, 2, 40, 1),
    Sketcher.Constraint("Tangent", 40, 2, 41, 1),
    Sketcher.Constraint("Tangent", 41, 2, 36, 1),
    Sketcher.Constraint("Tangent", 42, 2, 43, 1),
    Sketcher.Constraint("Tangent", 43, 2, 44, 1),
    Sketcher.Constraint("Tangent", 44, 2, 45, 1),
    Sketcher.Constraint("Tangent", 45, 2, 46, 1),
    Sketcher.Constraint("Coincident", 46, 2, 47, 1),
    Sketcher.Constraint("Coincident", 47, 2, 42, 1),
    Sketcher.Constraint("Horizontal", 0),
    Sketcher.Constraint("Vertical", 1),
    Sketcher.Constraint("Horizontal", 3),
    Sketcher.Constraint("Vertical", 5),
    Sketcher.Constraint("Vertical", 6),
    Sketcher.Constraint("Horizontal", 7),
    Sketcher.Constraint("Vertical", 9),
    Sketcher.Constraint("Horizontal", 11),
    Sketcher.Constraint("Vertical", 12),
    Sketcher.Constraint("Horizontal", 13),
    Sketcher.Constraint("Vertical", 15),
    Sketcher.Constraint("Horizontal", 17),
    Sketcher.Constraint("Horizontal", 18),
    Sketcher.Constraint("Vertical", 19),
    Sketcher.Constraint("Horizontal", 21),
    Sketcher.Constraint("Vertical", 23),
    Sketcher.Constraint("Vertical", 24),
    Sketcher.Constraint("Horizontal", 25),
    Sketcher.Constraint("Vertical", 27),
    Sketcher.Constraint("Horizontal", 29),
    Sketcher.Constraint("Vertical", 30),
    Sketcher.Constraint("Horizontal", 31),
    Sketcher.Constraint("Vertical", 33),
    Sketcher.Constraint("Horizontal", 35),
    Sketcher.Constraint("Vertical", 36),
    Sketcher.Constraint("Horizontal", 37),
    Sketcher.Constraint("Vertical", 38),
    Sketcher.Constraint("Horizontal", 40),
    Sketcher.Constraint("Vertical", 42),
    Sketcher.Constraint("Horizontal", 44),
    Sketcher.Constraint("Vertical", 46),
    Sketcher.Constraint("Horizontal", 47),
    Sketcher.Constraint("Equal", 2, 4),
    Sketcher.Constraint("Equal", 4, 8),
    Sketcher.Constraint("Equal", 8, 10),
    Sketcher.Constraint("Equal", 10, 14),
    Sketcher.Constraint("Equal", 14, 16),
    Sketcher.Constraint("Equal", 16, 20),
    Sketcher.Constraint("Equal", 20, 22),
    Sketcher.Constraint("Equal", 22, 26),
    Sketcher.Constraint("Equal", 26, 28),
    Sketcher.Constraint("Equal", 28, 32),
    Sketcher.Constraint("Equal", 32, 34),
    Sketcher.Constraint("Equal", 34, 39),
    Sketcher.Constraint("Equal", 39, 41),
    Sketcher.Constraint("Equal", 41, 43),
    Sketcher.Constraint("Equal", 43, 45),
    Sketcher.Constraint("Symmetric", 8, 3, 26, 3, -1, 1),
    Sketcher.Constraint("Symmetric", 14, 3, 32, 3, -1, 1),
    Sketcher.Constraint("Symmetric", 2, 3, 39, 3, -1, 1),
    Sketcher.Constraint("Symmetric", 20, 3, 43, 3, -1, 1),
    Sketcher.Constraint("Symmetric", 11, 2, 29, 2, -1, 1),
    Sketcher.Constraint("Symmetric", 17, 2, 35, 2, -1, 1),
    Sketcher.Constraint("Symmetric", 5, 2, 36, 2, -1, 1),
    Sketcher.Constraint("Symmetric", 23, 2, 46, 2, -1, 1),
    Sketcher.Constraint("Symmetric", 10, 3, 14, 3, -2),
    Sketcher.Constraint("Symmetric", 4, 3, 20, 3, -2),
    Sketcher.Constraint("Symmetric", 6, 2, 17, 2, -2),
    Sketcher.Constraint("Symmetric", 0, 2, 23, 2, -2),
    Sketcher.Constraint("Equal", 35, 1),
    Sketcher.Constraint("Equal", 47, 6),
    Sketcher.Constraint("Radius", 2, Q("0.2 mm")),
    Sketcher.Constraint("DistanceX", 0, 2, 0, 1, Q("1.5 mm")),
    Sketcher.Constraint("DistanceX", 7, 1, 7, 2, Q("0.35 mm")),
    Sketcher.Constraint("DistanceX", 2, 3, -1, 1, Q("9.5 mm")),
    Sketcher.Constraint("DistanceY", -1, 1, 2, 3, Q("3.3 mm")),
    Sketcher.Constraint("DistanceX", 8, 3, -1, 1, Q("3.3 mm")),
    Sketcher.Constraint("DistanceY", -1, 1, 8, 3, Q("8.4 mm")),
])
sketch2.setExpression("Constraints[109]", "Params.sketch2_radius")
sketch2.setExpression("Constraints[110]", "Params.sketch2_width")
sketch2.setExpression("Constraints[111]", "Params.sketch2_width2")
pad2 = body.newObject("PartDesign::Pad", "Pad001")
pad2.Profile = sketch2
pad2.setExpression("Length", "Params.pad2_length")
pad2.Reversed = True

doc.recompute()
